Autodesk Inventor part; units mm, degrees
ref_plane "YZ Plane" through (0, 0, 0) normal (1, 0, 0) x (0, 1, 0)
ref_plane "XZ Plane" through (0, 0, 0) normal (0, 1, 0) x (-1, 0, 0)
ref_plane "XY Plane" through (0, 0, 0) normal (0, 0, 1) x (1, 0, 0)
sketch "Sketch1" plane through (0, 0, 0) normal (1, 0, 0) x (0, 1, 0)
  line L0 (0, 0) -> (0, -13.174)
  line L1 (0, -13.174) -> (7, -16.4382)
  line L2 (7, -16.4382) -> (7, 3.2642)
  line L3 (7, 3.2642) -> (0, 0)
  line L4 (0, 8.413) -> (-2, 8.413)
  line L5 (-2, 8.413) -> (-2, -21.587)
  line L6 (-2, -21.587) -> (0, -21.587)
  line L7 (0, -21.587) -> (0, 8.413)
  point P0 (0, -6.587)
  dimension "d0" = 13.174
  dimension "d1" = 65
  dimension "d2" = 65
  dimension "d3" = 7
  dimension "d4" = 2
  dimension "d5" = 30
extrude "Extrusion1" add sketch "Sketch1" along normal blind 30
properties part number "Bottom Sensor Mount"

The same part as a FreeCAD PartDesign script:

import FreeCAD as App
import Part
import Sketcher
Q = App.Units.Quantity


def add_polygon(sketch, points):
    """Adds a closed chain of lines whose ends are joined by coincident constraints."""
    first, n = sketch.GeometryCount, len(points)
    for a, b in zip(points, points[1:] + points[:1]):
        sketch.addGeometry(Part.LineSegment(App.Vector(*a, 0), App.Vector(*b, 0)), False)
    for i in range(n):
        sketch.addConstraint(Sketcher.Constraint("Coincident", first + i, 2, first + (i + 1) % n, 1))

doc = App.newDocument("Part")
body = doc.addObject("PartDesign::Body", "Body")

# Sketch on YZ plane
sketch1 = doc.addObject("Sketcher::SketchObject", "Sketch")
body.addObject(sketch1)
sketch1.AttachmentSupport = (doc.YZ_Plane, [""])
sketch1.MapMode = "FlatFace"
add_polygon(sketch1, [(7, 3.2642), (0, 0), (0, 8.413), (-2, 8.413), (-2, -21.587), (0, -21.587), (0, -13.174), (7, -16.4382)])  # lines 0-7
sketch1.addConstraint([
    Sketcher.Constraint("Vertical", 1),
    Sketcher.Constraint("Horizontal", 2),
    Sketcher.Constraint("Vertical", 3),
    Sketcher.Constraint("Horizontal", 4),
    Sketcher.Constraint("Vertical", 5),
    Sketcher.Constraint("Vertical", 7),
    Sketcher.Constraint("Coincident", 0, 2, -1, 1),
    Sketcher.Constraint("PointOnObject", 4, 2, -2),
    Sketcher.Constraint("Equal", 1, 5),
    Sketcher.Constraint("Equal", 0, 6),
    Sketcher.Constraint("DistanceX", 2, 2, 2, 1, 2.0),
    Sketcher.Constraint("DistanceY", 3, 2, 3, 1, 30.0),
    Sketcher.Constraint("DistanceX", -1, 1, 6, 2, 7.0),
    Sketcher.Constraint("Angle", 0, Q("-154.9997 deg")),
    Sketcher.Constraint("DistanceY", 5, 2, -1, 1, 13.174),
])
pad1 = doc.addObject("PartDesign::Pad", "Pad")
body.addObject(pad1)
pad1.Profile = sketch1
pad1.Length = 30

doc.recompute()
